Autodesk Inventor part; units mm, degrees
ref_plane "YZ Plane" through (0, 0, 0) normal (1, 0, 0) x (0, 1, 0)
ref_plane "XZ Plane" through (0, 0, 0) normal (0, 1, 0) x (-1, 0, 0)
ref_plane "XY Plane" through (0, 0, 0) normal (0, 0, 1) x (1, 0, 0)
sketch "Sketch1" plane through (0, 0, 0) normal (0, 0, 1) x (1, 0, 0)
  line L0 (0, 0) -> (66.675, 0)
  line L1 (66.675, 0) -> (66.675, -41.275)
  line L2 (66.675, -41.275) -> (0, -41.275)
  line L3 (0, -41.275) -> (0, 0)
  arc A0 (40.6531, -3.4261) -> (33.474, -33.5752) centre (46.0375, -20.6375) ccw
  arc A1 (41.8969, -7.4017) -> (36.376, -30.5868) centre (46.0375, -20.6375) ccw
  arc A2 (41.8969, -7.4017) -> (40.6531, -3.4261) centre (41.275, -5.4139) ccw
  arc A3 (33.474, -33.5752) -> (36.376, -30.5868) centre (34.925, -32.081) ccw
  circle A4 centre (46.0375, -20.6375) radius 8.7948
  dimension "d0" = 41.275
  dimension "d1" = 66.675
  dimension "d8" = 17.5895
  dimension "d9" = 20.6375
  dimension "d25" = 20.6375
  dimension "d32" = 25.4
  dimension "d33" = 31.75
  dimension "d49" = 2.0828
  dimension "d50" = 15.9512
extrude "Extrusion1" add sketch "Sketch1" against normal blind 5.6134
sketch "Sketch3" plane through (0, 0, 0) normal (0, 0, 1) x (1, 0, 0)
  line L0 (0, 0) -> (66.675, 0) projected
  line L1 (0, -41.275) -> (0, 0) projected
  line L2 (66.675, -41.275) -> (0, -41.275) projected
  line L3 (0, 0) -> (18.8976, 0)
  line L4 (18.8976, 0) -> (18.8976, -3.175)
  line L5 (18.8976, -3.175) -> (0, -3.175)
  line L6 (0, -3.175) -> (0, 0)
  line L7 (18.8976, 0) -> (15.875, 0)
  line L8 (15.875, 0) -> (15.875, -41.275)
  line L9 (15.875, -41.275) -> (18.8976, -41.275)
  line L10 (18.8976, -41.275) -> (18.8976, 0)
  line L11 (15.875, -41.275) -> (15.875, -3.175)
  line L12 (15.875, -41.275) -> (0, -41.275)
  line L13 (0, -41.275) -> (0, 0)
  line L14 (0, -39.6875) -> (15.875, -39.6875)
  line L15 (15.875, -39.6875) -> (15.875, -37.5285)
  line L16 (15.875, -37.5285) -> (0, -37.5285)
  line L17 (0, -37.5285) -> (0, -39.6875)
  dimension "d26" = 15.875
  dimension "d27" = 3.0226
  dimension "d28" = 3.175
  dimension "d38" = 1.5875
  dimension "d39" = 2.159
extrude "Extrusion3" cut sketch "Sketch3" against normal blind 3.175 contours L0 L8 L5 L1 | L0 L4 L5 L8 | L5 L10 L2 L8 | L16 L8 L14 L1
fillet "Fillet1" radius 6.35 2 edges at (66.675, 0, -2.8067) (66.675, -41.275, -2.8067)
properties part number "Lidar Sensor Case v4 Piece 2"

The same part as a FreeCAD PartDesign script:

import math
import FreeCAD as App
import Part
import Sketcher
from FreeCAD import Vector
Q = App.Units.Quantity


def edges_at(feature, points):
    """Names of the edges that pass closest to the given points."""
    edges = feature.Shape.Edges
    near = lambda p: min(range(len(edges)), key=lambda i: edges[i].distToShape(Part.Vertex(*p))[0])
    return sorted({f"Edge{near(p) + 1}" for p in points})


def add_polygon(sketch, points):
    """Adds a closed chain of lines whose ends are joined by coincident constraints."""
    first, n = sketch.GeometryCount, len(points)
    for a, b in zip(points, points[1:] + points[:1]):
        sketch.addGeometry(Part.LineSegment(App.Vector(*a, 0), App.Vector(*b, 0)), False)
    for i in range(n):
        sketch.addConstraint(Sketcher.Constraint("Coincident", first + i, 2, first + (i + 1) % n, 1))

doc = App.newDocument("Part")
body = doc.addObject("PartDesign::Body", "Body")

# Sketch on XY plane
sketch1 = body.newObject("Sketcher::SketchObject", "Sketch")
sketch1.AttachmentSupport = (doc.getObject("XY_Plane"), [""])
sketch1.MapMode = "FlatFace"
add_polygon(sketch1, [(66.7, 0), (0, 0), (0, -41.3), (66.7, -41.3)])  # lines 0-3
sketch1.addGeometry(Part.ArcOfCircle(Part.Circle(Vector(46, -20.6, 0), Vector(0, 0, 1), 18), math.radians(107), math.radians(226)), False)  # 4
sketch1.addGeometry(Part.ArcOfCircle(Part.Circle(Vector(41.3, -5.4, 0), Vector(0, 0, 1), 2.1), math.radians(-73), math.radians(107)), False)  # 5
sketch1.addGeometry(Part.ArcOfCircle(Part.Circle(Vector(46, -20.6, 0), Vector(0, 0, 1), 13.9), math.radians(107), math.radians(226)), False)  # 6
sketch1.addGeometry(Part.ArcOfCircle(Part.Circle(Vector(34.9, -32.1, 0), Vector(0, 0, 1), 2.1), math.radians(-134), math.radians(46)), False)  # 7
sketch1.addGeometry(Part.Circle(Vector(46, -20.6, 0), Vector(0, 0, 1), 8.8), False)  # 8
sketch1.addConstraint([
    Sketcher.Constraint("Tangent", 4, 1, 5, 2),
    Sketcher.Constraint("Tangent", 5, 1, 6, 1),
    Sketcher.Constraint("Tangent", 6, 2, 7, 2),
    Sketcher.Constraint("Tangent", 7, 1, 4, 2),
    Sketcher.Constraint("Horizontal", 0),
    Sketcher.Constraint("Vertical", 1),
    Sketcher.Constraint("Horizontal", 2),
    Sketcher.Constraint("Vertical", 3),
    Sketcher.Constraint("Coincident", 0, 2, -1, 1),
    Sketcher.Constraint("Coincident", 6, 3, 4, 3),
    Sketcher.Constraint("Coincident", 8, 3, 4, 3),
    Sketcher.Constraint("Radius", 5, Q("0.082 in")),
    Sketcher.Constraint("DistanceX", 5, 3, 2, 2, Q("1 in")),
    Sketcher.Constraint("Diameter", 8, Q("0.6925 in")),
    Sketcher.Constraint("DistanceX", 0, 2, 0, 1, Q("2.625 in")),
    Sketcher.Constraint("DistanceY", 1, 2, 1, 1, Q("1.625 in")),
    Sketcher.Constraint("Radius", 4, Q("0.71 in")),
    Sketcher.Constraint("DistanceX", 7, 3, 2, 2, Q("1.25 in")),
    Sketcher.Constraint("DistanceY", 4, 3, -1, 1, Q("0.8125 in")),
    Sketcher.Constraint("DistanceX", 4, 3, 2, 2, Q("0.8125 in")),
])
pad1 = body.newObject("PartDesign::Pad", "Pad")
pad1.Profile = sketch1
pad1.Length = Q("0.221 in")
pad1.Reversed = True

# Sketch on XY plane
sketch2 = body.newObject("Sketcher::SketchObject", "Sketch001")
sketch2.AttachmentSupport = (doc.getObject("XY_Plane"), [""])
sketch2.MapMode = "FlatFace"
add_polygon(sketch2, [(0, 0), (0, -3.2), (15.9, -3.2), (15.9, -37.5), (0, -37.5), (0, -39.7), (15.9, -39.7), (15.9, -41.3), (18.9, -41.3), (18.9, 0)])  # lines 0-9
sketch2.addConstraint([
    Sketcher.Constraint("Vertical", 0),
    Sketcher.Constraint("Horizontal", 1),
    Sketcher.Constraint("Vertical", 2),
    Sketcher.Constraint("Horizontal", 3),
    Sketcher.Constraint("Vertical", 4),
    Sketcher.Constraint("Horizontal", 5),
    Sketcher.Constraint("Vertical", 6),
    Sketcher.Constraint("Horizontal", 7),
    Sketcher.Constraint("Vertical", 8),
    Sketcher.Constraint("Horizontal", 9),
    Sketcher.Constraint("Coincident", 9, 2, -1, 1),
    Sketcher.Constraint("PointOnObject", 3, 2, -2),
    Sketcher.Constraint("Vertical", 2, 2, 5, 2),
    Sketcher.Constraint("DistanceX", 1, 1, 1, 2, Q("0.625 in")),
    Sketcher.Constraint("DistanceX", 7, 1, 7, 2, Q("0.119 in")),
    Sketcher.Constraint("DistanceY", 0, 2, 0, 1, Q("0.125 in")),
    Sketcher.Constraint("DistanceY", 4, 2, 4, 1, Q("0.085 in")),
    Sketcher.Constraint("DistanceY", 6, 2, 6, 1, Q("0.0625 in")),
    Sketcher.Constraint("DistanceY", 6, 2, 1, 2, Q("1.5 in")),
])
pocket1 = body.newObject("PartDesign::Pocket", "Pocket")
pocket1.Profile = sketch2
pocket1.Length = Q("0.125 in")
doc.recompute()

fillet = body.newObject("PartDesign::Fillet", "Fillet")
fillet.Base = (pocket1, edges_at(pocket1, [(66.675, 0, -2.807), (66.675, -41.275, -2.807)]))
fillet.Radius = Q("0.25 in")

doc.recompute()
